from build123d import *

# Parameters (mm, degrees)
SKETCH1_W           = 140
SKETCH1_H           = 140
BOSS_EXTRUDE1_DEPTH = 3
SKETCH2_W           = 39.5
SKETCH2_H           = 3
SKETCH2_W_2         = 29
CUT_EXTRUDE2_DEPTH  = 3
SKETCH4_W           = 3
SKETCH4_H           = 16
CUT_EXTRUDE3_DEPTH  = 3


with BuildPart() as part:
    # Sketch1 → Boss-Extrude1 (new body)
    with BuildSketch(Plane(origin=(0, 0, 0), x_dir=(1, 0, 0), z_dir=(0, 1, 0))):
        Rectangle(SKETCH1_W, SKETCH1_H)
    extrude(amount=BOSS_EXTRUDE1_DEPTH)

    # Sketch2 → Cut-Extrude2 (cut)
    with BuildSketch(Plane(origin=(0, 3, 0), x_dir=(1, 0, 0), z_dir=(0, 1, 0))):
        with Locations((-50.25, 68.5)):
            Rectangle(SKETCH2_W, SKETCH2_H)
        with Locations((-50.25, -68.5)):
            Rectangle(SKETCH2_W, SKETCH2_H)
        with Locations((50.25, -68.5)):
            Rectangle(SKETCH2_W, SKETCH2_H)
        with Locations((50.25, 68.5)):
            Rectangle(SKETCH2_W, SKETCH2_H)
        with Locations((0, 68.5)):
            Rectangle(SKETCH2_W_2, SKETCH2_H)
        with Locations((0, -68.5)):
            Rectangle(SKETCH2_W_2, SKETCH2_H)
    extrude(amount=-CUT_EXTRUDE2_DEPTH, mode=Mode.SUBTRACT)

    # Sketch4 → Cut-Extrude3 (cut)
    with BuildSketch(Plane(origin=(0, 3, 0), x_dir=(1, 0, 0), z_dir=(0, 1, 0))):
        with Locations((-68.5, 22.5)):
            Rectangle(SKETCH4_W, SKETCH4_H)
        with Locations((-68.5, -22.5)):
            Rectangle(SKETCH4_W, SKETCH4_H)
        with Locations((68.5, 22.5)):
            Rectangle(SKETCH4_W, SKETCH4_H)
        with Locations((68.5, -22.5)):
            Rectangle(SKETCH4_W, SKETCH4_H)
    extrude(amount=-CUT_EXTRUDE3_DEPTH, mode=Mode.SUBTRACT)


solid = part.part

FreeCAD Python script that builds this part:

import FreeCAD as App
import Part
import Sketcher
from FreeCAD import Vector
Q = App.Units.Quantity

doc = App.newDocument("Part")
body = doc.addObject("PartDesign::Body", "Body")

# Sketch on XZ plane
sketch1 = body.newObject("Sketcher::SketchObject", "Sketch")
sketch1.AttachmentSupport = (doc.getObject("XZ_Plane"), [""])
sketch1.MapMode = "FlatFace"
sketch1.addGeometry(Part.LineSegment(Vector(-70, -70, 0), Vector(-70, 70, 0)), False)
sketch1.addGeometry(Part.LineSegment(Vector(-70, 70, 0), Vector(70, 70, 0)), False)
sketch1.addGeometry(Part.LineSegment(Vector(70, 70, 0), Vector(70, -70, 0)), False)
sketch1.addGeometry(Part.LineSegment(Vector(70, -70, 0), Vector(-70, -70, 0)), False)
sketch1.addConstraint(Sketcher.Constraint("Coincident", 0, 2, 1, 1))
sketch1.addConstraint(Sketcher.Constraint("Coincident", 1, 2, 2, 1))
sketch1.addConstraint(Sketcher.Constraint("Coincident", 2, 2, 3, 1))
sketch1.addConstraint(Sketcher.Constraint("Coincident", 3, 2, 0, 1))
sketch1.addConstraint(Sketcher.Constraint("Vertical", 0))
sketch1.addConstraint(Sketcher.Constraint("Horizontal", 1))
sketch1.addConstraint(Sketcher.Constraint("Vertical", 2))
sketch1.addConstraint(Sketcher.Constraint("Horizontal", 3))
sketch1.addConstraint(Sketcher.Constraint("Symmetric", 0, 2, 2, 2, -1, 1))
sketch1.addConstraint(Sketcher.Constraint("Equal", 3, 0))
sketch1.addConstraint(Sketcher.Constraint("DistanceX", 1, 1, 1, 2, Q("140 mm")))
pad1 = body.newObject("PartDesign::Pad", "Pad")
pad1.Profile = sketch1
pad1.Length = 3
pad1.Reversed = True

# Sketch on XZ plane
sketch2 = body.newObject("Sketcher::SketchObject", "Sketch001")
sketch2.AttachmentSupport = (doc.getObject("XZ_Plane"), [""])
sketch2.MapMode = "FlatFace"
sketch2.AttachmentOffset = App.Placement(Vector(0, 0, -3), App.Rotation())
sketch2.addGeometry(Part.LineSegment(Vector(-70, -70, 0), Vector(-70, -67, 0)), False)
sketch2.addGeometry(Part.LineSegment(Vector(-70, -67, 0), Vector(-30.5, -67, 0)), False)
sketch2.addGeometry(Part.LineSegment(Vector(-30.5, -67, 0), Vector(-30.5, -70, 0)), False)
sketch2.addGeometry(Part.LineSegment(Vector(-30.5, -70, 0), Vector(-70, -70, 0)), False)
sketch2.addGeometry(Part.LineSegment(Vector(-70, 67, 0), Vector(-70, 70, 0)), False)
sketch2.addGeometry(Part.LineSegment(Vector(-70, 70, 0), Vector(-30.5, 70, 0)), False)
sketch2.addGeometry(Part.LineSegment(Vector(-30.5, 70, 0), Vector(-30.5, 67, 0)), False)
sketch2.addGeometry(Part.LineSegment(Vector(-30.5, 67, 0), Vector(-70, 67, 0)), False)
sketch2.addGeometry(Part.LineSegment(Vector(30.5, 67, 0), Vector(30.5, 70, 0)), False)
sketch2.addGeometry(Part.LineSegment(Vector(30.5, 70, 0), Vector(70, 70, 0)), False)
sketch2.addGeometry(Part.LineSegment(Vector(70, 70, 0), Vector(70, 67, 0)), False)
sketch2.addGeometry(Part.LineSegment(Vector(70, 67, 0), Vector(30.5, 67, 0)), False)
sketch2.addGeometry(Part.LineSegment(Vector(30.5, -70, 0), Vector(30.5, -67, 0)), False)
sketch2.addGeometry(Part.LineSegment(Vector(30.5, -67, 0), Vector(70, -67, 0)), False)
sketch2.addGeometry(Part.LineSegment(Vector(70, -67, 0), Vector(70, -70, 0)), False)
sketch2.addGeometry(Part.LineSegment(Vector(70, -70, 0), Vector(30.5, -70, 0)), False)
sketch2.addGeometry(Part.LineSegment(Vector(-14.5, -70, 0), Vector(-14.5, -67, 0)), False)
sketch2.addGeometry(Part.LineSegment(Vector(-14.5, -67, 0), Vector(14.5, -67, 0)), False)
sketch2.addGeometry(Part.LineSegment(Vector(14.5, -67, 0), Vector(14.5, -70, 0)), False)
sketch2.addGeometry(Part.LineSegment(Vector(14.5, -70, 0), Vector(-14.5, -70, 0)), False)
sketch2.addGeometry(Part.LineSegment(Vector(-14.5, 67, 0), Vector(-14.5, 70, 0)), False)
sketch2.addGeometry(Part.LineSegment(Vector(-14.5, 70, 0), Vector(14.5, 70, 0)), False)
sketch2.addGeometry(Part.LineSegment(Vector(14.5, 70, 0), Vector(14.5, 67, 0)), False)
sketch2.addGeometry(Part.LineSegment(Vector(14.5, 67, 0), Vector(-14.5, 67, 0)), False)
sketch2.addConstraint(Sketcher.Constraint("Coincident", 0, 2, 1, 1))
sketch2.addConstraint(Sketcher.Constraint("Coincident", 1, 2, 2, 1))
sketch2.addConstraint(Sketcher.Constraint("Coincident", 2, 2, 3, 1))
sketch2.addConstraint(Sketcher.Constraint("Coincident", 3, 2, 0, 1))
sketch2.addConstraint(Sketcher.Constraint("Coincident", 4, 2, 5, 1))
sketch2.addConstraint(Sketcher.Constraint("Coincident", 5, 2, 6, 1))
sketch2.addConstraint(Sketcher.Constraint("Coincident", 6, 2, 7, 1))
sketch2.addConstraint(Sketcher.Constraint("Coincident", 7, 2, 4, 1))
sketch2.addConstraint(Sketcher.Constraint("Coincident", 8, 2, 9, 1))
sketch2.addConstraint(Sketcher.Constraint("Coincident", 9, 2, 10, 1))
sketch2.addConstraint(Sketcher.Constraint("Coincident", 10, 2, 11, 1))
sketch2.addConstraint(Sketcher.Constraint("Coincident", 11, 2, 8, 1))
sketch2.addConstraint(Sketcher.Constraint("Coincident", 12, 2, 13, 1))
sketch2.addConstraint(Sketcher.Constraint("Coincident", 13, 2, 14, 1))
sketch2.addConstraint(Sketcher.Constraint("Coincident", 14, 2, 15, 1))
sketch2.addConstraint(Sketcher.Constraint("Coincident", 15, 2, 12, 1))
sketch2.addConstraint(Sketcher.Constraint("Coincident", 16, 2, 17, 1))
sketch2.addConstraint(Sketcher.Constraint("Coincident", 17, 2, 18, 1))
sketch2.addConstraint(Sketcher.Constraint("Coincident", 18, 2, 19, 1))
sketch2.addConstraint(Sketcher.Constraint("Coincident", 19, 2, 16, 1))
sketch2.addConstraint(Sketcher.Constraint("Coincident", 20, 2, 21, 1))
sketch2.addConstraint(Sketcher.Constraint("Coincident", 21, 2, 22, 1))
sketch2.addConstraint(Sketcher.Constraint("Coincident", 22, 2, 23, 1))
sketch2.addConstraint(Sketcher.Constraint("Coincident", 23, 2, 20, 1))
sketch2.addConstraint(Sketcher.Constraint("Vertical", 0))
sketch2.addConstraint(Sketcher.Constraint("Horizontal", 1))
sketch2.addConstraint(Sketcher.Constraint("Vertical", 2))
sketch2.addConstraint(Sketcher.Constraint("Horizontal", 3))
sketch2.addConstraint(Sketcher.Constraint("Vertical", 4))
sketch2.addConstraint(Sketcher.Constraint("Horizontal", 5))
sketch2.addConstraint(Sketcher.Constraint("Vertical", 6))
sketch2.addConstraint(Sketcher.Constraint("Horizontal", 7))
sketch2.addConstraint(Sketcher.Constraint("Vertical", 8))
sketch2.addConstraint(Sketcher.Constraint("Horizontal", 9))
sketch2.addConstraint(Sketcher.Constraint("Vertical", 10))
sketch2.addConstraint(Sketcher.Constraint("Horizontal", 11))
sketch2.addConstraint(Sketcher.Constraint("Vertical", 12))
sketch2.addConstraint(Sketcher.Constraint("Horizontal", 13))
sketch2.addConstraint(Sketcher.Constraint("Vertical", 14))
sketch2.addConstraint(Sketcher.Constraint("Horizontal", 15))
sketch2.addConstraint(Sketcher.Constraint("Vertical", 16))
sketch2.addConstraint(Sketcher.Constraint("Horizontal", 17))
sketch2.addConstraint(Sketcher.Constraint("Vertical", 18))
sketch2.addConstraint(Sketcher.Constraint("Horizontal", 19))
sketch2.addConstraint(Sketcher.Constraint("Vertical", 20))
sketch2.addConstraint(Sketcher.Constraint("Horizontal", 21))
sketch2.addConstraint(Sketcher.Constraint("Vertical", 22))
sketch2.addConstraint(Sketcher.Constraint("Horizontal", 23))
sketch2.addConstraint(Sketcher.Constraint("Symmetric", 2, 2, 8, 2, -1, 1))
sketch2.addConstraint(Sketcher.Constraint("Symmetric", 0, 2, 10, 2, -1, 1))
sketch2.addConstraint(Sketcher.Constraint("Symmetric", 6, 2, 12, 2, -1, 1))
sketch2.addConstraint(Sketcher.Constraint("Symmetric", 4, 2, 14, 2, -1, 1))
sketch2.addConstraint(Sketcher.Constraint("Symmetric", 18, 2, 20, 2, -1, 1))
sketch2.addConstraint(Sketcher.Constraint("Symmetric", 16, 2, 22, 2, -1, 1))
sketch2.addConstraint(Sketcher.Constraint("Symmetric", 5, 2, 8, 2, -2))
sketch2.addConstraint(Sketcher.Constraint("Symmetric", 7, 2, 10, 2, -2))
sketch2.addConstraint(Sketcher.Constraint("Horizontal", 13, 2, 16, 2))
sketch2.addConstraint(Sketcher.Constraint("Horizontal", 15, 2, 18, 2))
sketch2.addConstraint(Sketcher.Constraint("Vertical", 19, 2, 20, 2))
sketch2.addConstraint(Sketcher.Constraint("DistanceX", 17, 1, 17, 2, Q("29 mm")))
sketch2.addConstraint(Sketcher.Constraint("DistanceY", 0, 1, 0, 2, Q("3 mm")))
sketch2.addConstraint(Sketcher.Constraint("DistanceX", 1, 1, 1, 2, Q("39.5 mm")))
sketch2.addConstraint(Sketcher.Constraint("DistanceX", 0, 2, -1, 1, Q("70 mm")))
sketch2.addConstraint(Sketcher.Constraint("DistanceY", 0, 2, -1, 1, Q("67 mm")))
pocket1 = body.newObject("PartDesign::Pocket", "Pocket")
pocket1.Profile = sketch2
pocket1.Length = 3
pocket1.Reversed = True

# Sketch on XZ plane
sketch3 = body.newObject("Sketcher::SketchObject", "Sketch002")
sketch3.AttachmentSupport = (doc.getObject("XZ_Plane"), [""])
sketch3.MapMode = "FlatFace"
sketch3.AttachmentOffset = App.Placement(Vector(0, 0, -3), App.Rotation())
sketch3.addGeometry(Part.LineSegment(Vector(-70, -30.5, 0), Vector(-70, -14.5, 0)), False)
sketch3.addGeometry(Part.LineSegment(Vector(-70, -14.5, 0), Vector(-67, -14.5, 0)), False)
sketch3.addGeometry(Part.LineSegment(Vector(-67, -14.5, 0), Vector(-67, -30.5, 0)), False)
sketch3.addGeometry(Part.LineSegment(Vector(-67, -30.5, 0), Vector(-70, -30.5, 0)), False)
sketch3.addGeometry(Part.LineSegment(Vector(-70, 14.5, 0), Vector(-70, 30.5, 0)), False)
sketch3.addGeometry(Part.LineSegment(Vector(-70, 30.5, 0), Vector(-67, 30.5, 0)), False)
sketch3.addGeometry(Part.LineSegment(Vector(-67, 30.5, 0), Vector(-67, 14.5, 0)), False)
sketch3.addGeometry(Part.LineSegment(Vector(-67, 14.5, 0), Vector(-70, 14.5, 0)), False)
sketch3.addGeometry(Part.LineSegment(Vector(67, -30.5, 0), Vector(67, -14.5, 0)), False)
sketch3.addGeometry(Part.LineSegment(Vector(67, -14.5, 0), Vector(70, -14.5, 0)), False)
sketch3.addGeometry(Part.LineSegment(Vector(70, -14.5, 0), Vector(70, -30.5, 0)), False)
sketch3.addGeometry(Part.LineSegment(Vector(70, -30.5, 0), Vector(67, -30.5, 0)), False)
sketch3.addGeometry(Part.LineSegment(Vector(67, 14.5, 0), Vector(67, 30.5, 0)), False)
sketch3.addGeometry(Part.LineSegment(Vector(67, 30.5, 0), Vector(70, 30.5, 0)), False)
sketch3.addGeometry(Part.LineSegment(Vector(70, 30.5, 0), Vector(70, 14.5, 0)), False)
sketch3.addGeometry(Part.LineSegment(Vector(70, 14.5, 0), Vector(67, 14.5, 0)), False)
sketch3.addConstraint(Sketcher.Constraint("Coincident", 0, 2, 1, 1))
sketch3.addConstraint(Sketcher.Constraint("Coincident", 1, 2, 2, 1))
sketch3.addConstraint(Sketcher.Constraint("Coincident", 2, 2, 3, 1))
sketch3.addConstraint(Sketcher.Constraint("Coincident", 3, 2, 0, 1))
sketch3.addConstraint(Sketcher.Constraint("Coincident", 4, 2, 5, 1))
sketch3.addConstraint(Sketcher.Constraint("Coincident", 5, 2, 6, 1))
sketch3.addConstraint(Sketcher.Constraint("Coincident", 6, 2, 7, 1))
sketch3.addConstraint(Sketcher.Constraint("Coincident", 7, 2, 4, 1))
sketch3.addConstraint(Sketcher.Constraint("Coincident", 8, 2, 9, 1))
sketch3.addConstraint(Sketcher.Constraint("Coincident", 9, 2, 10, 1))
sketch3.addConstraint(Sketcher.Constraint("Coincident", 10, 2, 11, 1))
sketch3.addConstraint(Sketcher.Constraint("Coincident", 11, 2, 8, 1))
sketch3.addConstraint(Sketcher.Constraint("Coincident", 12, 2, 13, 1))
sketch3.addConstraint(Sketcher.Constraint("Coincident", 13, 2, 14, 1))
sketch3.addConstraint(Sketcher.Constraint("Coincident", 14, 2, 15, 1))
sketch3.addConstraint(Sketcher.Constraint("Coincident", 15, 2, 12, 1))
sketch3.addConstraint(Sketcher.Constraint("Vertical", 0))
sketch3.addConstraint(Sketcher.Constraint("Horizontal", 1))
sketch3.addConstraint(Sketcher.Constraint("Vertical", 2))
sketch3.addConstraint(Sketcher.Constraint("Horizontal", 3))
sketch3.addConstraint(Sketcher.Constraint("Vertical", 4))
sketch3.addConstraint(Sketcher.Constraint("Horizontal", 5))
sketch3.addConstraint(Sketcher.Constraint("Vertical", 6))
sketch3.addConstraint(Sketcher.Constraint("Horizontal", 7))
sketch3.addConstraint(Sketcher.Constraint("Vertical", 8))
sketch3.addConstraint(Sketcher.Constraint("Horizontal", 9))
sketch3.addConstraint(Sketcher.Constraint("Vertical", 10))
sketch3.addConstraint(Sketcher.Constraint("Horizontal", 11))
sketch3.addConstraint(Sketcher.Constraint("Vertical", 12))
sketch3.addConstraint(Sketcher.Constraint("Horizontal", 13))
sketch3.addConstraint(Sketcher.Constraint("Vertical", 14))
sketch3.addConstraint(Sketcher.Constraint("Horizontal", 15))
sketch3.addConstraint(Sketcher.Constraint("Symmetric", 6, 2, 8, 2, -1, 1))
sketch3.addConstraint(Sketcher.Constraint("Symmetric", 4, 2, 10, 2, -1, 1))
sketch3.addConstraint(Sketcher.Constraint("Symmetric", 2, 2, 12, 2, -1, 1))
sketch3.addConstraint(Sketcher.Constraint("Symmetric", 0, 2, 14, 2, -1, 1))
sketch3.addConstraint(Sketcher.Constraint("Symmetric", 1, 2, 8, 2, -2))
sketch3.addConstraint(Sketcher.Constraint("Symmetric", 3, 2, 10, 2, -2))
sketch3.addConstraint(Sketcher.Constraint("DistanceX", 1, 1, 1, 2, Q("3 mm")))
sketch3.addConstraint(Sketcher.Constraint("DistanceY", 0, 1, 0, 2, Q("16 mm")))
sketch3.addConstraint(Sketcher.Constraint("DistanceX", 0, 2, -1, 1, Q("70 mm")))
sketch3.addConstraint(Sketcher.Constraint("DistanceY", 0, 2, 4, 2, Q("45 mm")))
pocket2 = body.newObject("PartDesign::Pocket", "Pocket001")
pocket2.Profile = sketch3
pocket2.Length = 3
pocket2.Reversed = True

doc.recompute()
